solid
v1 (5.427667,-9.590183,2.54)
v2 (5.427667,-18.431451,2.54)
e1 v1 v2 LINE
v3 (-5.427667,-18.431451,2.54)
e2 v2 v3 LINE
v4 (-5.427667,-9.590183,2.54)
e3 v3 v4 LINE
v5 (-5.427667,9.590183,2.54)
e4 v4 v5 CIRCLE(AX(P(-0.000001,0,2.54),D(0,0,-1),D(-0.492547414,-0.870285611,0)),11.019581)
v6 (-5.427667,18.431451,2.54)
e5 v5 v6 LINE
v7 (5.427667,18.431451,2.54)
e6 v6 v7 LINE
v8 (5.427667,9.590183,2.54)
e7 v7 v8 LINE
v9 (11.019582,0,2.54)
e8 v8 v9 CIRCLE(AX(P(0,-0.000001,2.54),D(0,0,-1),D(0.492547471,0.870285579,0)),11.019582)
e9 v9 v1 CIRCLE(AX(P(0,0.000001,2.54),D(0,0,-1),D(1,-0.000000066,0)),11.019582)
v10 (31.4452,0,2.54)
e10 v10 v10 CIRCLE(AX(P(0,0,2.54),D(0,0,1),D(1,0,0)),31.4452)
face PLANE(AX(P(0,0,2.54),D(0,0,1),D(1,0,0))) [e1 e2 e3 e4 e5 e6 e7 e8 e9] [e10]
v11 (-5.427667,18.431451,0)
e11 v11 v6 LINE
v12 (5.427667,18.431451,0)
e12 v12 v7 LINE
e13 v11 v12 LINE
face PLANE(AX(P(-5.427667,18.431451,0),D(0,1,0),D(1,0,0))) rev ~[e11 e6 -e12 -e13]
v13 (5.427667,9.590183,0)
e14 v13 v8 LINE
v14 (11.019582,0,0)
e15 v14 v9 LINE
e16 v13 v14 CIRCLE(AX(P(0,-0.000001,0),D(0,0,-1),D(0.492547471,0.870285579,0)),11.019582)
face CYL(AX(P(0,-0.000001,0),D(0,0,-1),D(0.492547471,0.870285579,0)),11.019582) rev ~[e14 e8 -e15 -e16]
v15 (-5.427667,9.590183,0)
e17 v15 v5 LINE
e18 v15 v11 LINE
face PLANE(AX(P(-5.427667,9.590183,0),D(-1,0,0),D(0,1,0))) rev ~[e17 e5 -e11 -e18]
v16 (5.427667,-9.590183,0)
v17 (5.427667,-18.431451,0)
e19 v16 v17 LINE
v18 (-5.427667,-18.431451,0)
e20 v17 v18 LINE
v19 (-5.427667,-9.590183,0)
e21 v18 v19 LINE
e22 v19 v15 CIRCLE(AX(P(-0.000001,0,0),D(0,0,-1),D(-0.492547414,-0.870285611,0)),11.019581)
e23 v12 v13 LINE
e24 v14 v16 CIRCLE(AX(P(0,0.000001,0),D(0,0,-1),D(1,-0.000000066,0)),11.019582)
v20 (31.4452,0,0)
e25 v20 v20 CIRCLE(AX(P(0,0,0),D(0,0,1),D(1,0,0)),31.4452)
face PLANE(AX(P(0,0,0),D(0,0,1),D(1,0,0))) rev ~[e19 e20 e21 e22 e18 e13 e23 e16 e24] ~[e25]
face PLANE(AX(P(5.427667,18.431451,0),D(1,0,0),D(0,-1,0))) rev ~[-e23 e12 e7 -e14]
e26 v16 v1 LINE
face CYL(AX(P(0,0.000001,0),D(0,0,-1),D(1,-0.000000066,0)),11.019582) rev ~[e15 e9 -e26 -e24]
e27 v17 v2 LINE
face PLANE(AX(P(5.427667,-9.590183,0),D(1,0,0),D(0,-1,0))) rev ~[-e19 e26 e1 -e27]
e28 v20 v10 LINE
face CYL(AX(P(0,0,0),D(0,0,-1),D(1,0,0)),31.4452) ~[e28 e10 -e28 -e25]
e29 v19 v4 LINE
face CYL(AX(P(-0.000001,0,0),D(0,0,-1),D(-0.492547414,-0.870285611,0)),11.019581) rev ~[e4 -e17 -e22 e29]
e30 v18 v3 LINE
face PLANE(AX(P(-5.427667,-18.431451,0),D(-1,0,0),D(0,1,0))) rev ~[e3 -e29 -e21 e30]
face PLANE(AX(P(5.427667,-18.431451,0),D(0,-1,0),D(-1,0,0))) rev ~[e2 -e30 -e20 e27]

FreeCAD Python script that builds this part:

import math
import FreeCAD as App
import Part
import Sketcher
Q = App.Units.Quantity

doc = App.newDocument("Part")
params = doc.addObject("Spreadsheet::Sheet", "Params")
for row, (alias, value) in enumerate([
    ("sketch1_diameter", "2.476 in"),
    ("pad1_length", "0.1 in"),
], start=1):
    params.set(f"A{row}", alias)
    params.set(f"B{row}", "=" + value)
    params.setAlias(f"B{row}", alias)

body = doc.addObject("PartDesign::Body", "Body")

# Sketch on XY plane
sketch1 = body.newObject("Sketcher::SketchObject", "Sketch")
sketch1.AttachmentSupport = (doc.getObject("XY_Plane"), [""])
sketch1.MapMode = "FlatFace"
sketch1.addGeometry(Part.Circle(App.Vector(0, 0, 0), App.Vector(0, 0, 1), 31.4452), False)
sketch1.addGeometry(Part.LineSegment(App.Vector(5.427667, 18.431451, 0), App.Vector(5.427667, 9.590183, 0)), False)
sketch1.addGeometry(Part.ArcOfCircle(Part.Circle(App.Vector(0, -0.000001, 0), App.Vector(0, 0, 1), 11.019582), math.radians(0.000004), math.radians(60.491843)), False)
sketch1.addGeometry(Part.ArcOfCircle(Part.Circle(App.Vector(0, 0.000001, 0), App.Vector(0, 0, 1), 11.019582), math.radians(-60.491843), math.radians(-0.000004)), False)
sketch1.addGeometry(Part.LineSegment(App.Vector(5.427667, -9.590183, 0), App.Vector(5.427667, -18.431451, 0)), False)
sketch1.addGeometry(Part.LineSegment(App.Vector(5.427667, -18.431451, 0), App.Vector(-5.427667, -18.431451, 0)), False)
sketch1.addGeometry(Part.LineSegment(App.Vector(-5.427667, -18.431451, 0), App.Vector(-5.427667, -9.590183, 0)), False)
sketch1.addGeometry(Part.ArcOfCircle(Part.Circle(App.Vector(-0.000001, 0, 0), App.Vector(0, 0, 1), 11.019581), math.radians(119.508154), math.radians(240.491846)), False)
sketch1.addGeometry(Part.LineSegment(App.Vector(-5.427667, 9.590183, 0), App.Vector(-5.427667, 18.431451, 0)), False)
sketch1.addGeometry(Part.LineSegment(App.Vector(-5.427667, 18.431451, 0), App.Vector(5.427667, 18.431451, 0)), False)
sketch1.addConstraint(Sketcher.Constraint("Coincident", 1, 2, 2, 2))
sketch1.addConstraint(Sketcher.Constraint("Tangent", 2, 1, 3, 2))
sketch1.addConstraint(Sketcher.Constraint("Coincident", 3, 1, 4, 1))
sketch1.addConstraint(Sketcher.Constraint("Coincident", 4, 2, 5, 1))
sketch1.addConstraint(Sketcher.Constraint("Coincident", 5, 2, 6, 1))
sketch1.addConstraint(Sketcher.Constraint("Coincident", 6, 2, 7, 2))
sketch1.addConstraint(Sketcher.Constraint("Coincident", 7, 1, 8, 1))
sketch1.addConstraint(Sketcher.Constraint("Coincident", 8, 2, 9, 1))
sketch1.addConstraint(Sketcher.Constraint("Coincident", 9, 2, 1, 1))
sketch1.addConstraint(Sketcher.Constraint("Vertical", 1))
sketch1.addConstraint(Sketcher.Constraint("Vertical", 4))
sketch1.addConstraint(Sketcher.Constraint("Horizontal", 5))
sketch1.addConstraint(Sketcher.Constraint("Vertical", 6))
sketch1.addConstraint(Sketcher.Constraint("Vertical", 8))
sketch1.addConstraint(Sketcher.Constraint("Horizontal", 9))
sketch1.addConstraint(Sketcher.Constraint("Coincident", 0, 3, -1, 1))
sketch1.addConstraint(Sketcher.Constraint("Coincident", 2, 3, -1, 1))
sketch1.addConstraint(Sketcher.Constraint("Coincident", 7, 3, -1, 1))
sketch1.addConstraint(Sketcher.Constraint("Equal", 2, 3))
sketch1.addConstraint(Sketcher.Constraint("Equal", 3, 7))
sketch1.addConstraint(Sketcher.Constraint("Symmetric", 4, 2, 8, 2, -1, 1))
sketch1.addConstraint(Sketcher.Constraint("PointOnObject", 2, 1, -1))
sketch1.addConstraint(Sketcher.Constraint("Horizontal", 3, 1, 6, 2))
sketch1.addConstraint(Sketcher.Constraint("Horizontal", 1, 2, 7, 1))
sketch1.addConstraint(Sketcher.Constraint("Diameter", 0, Q("2.476 in")))
sketch1.addConstraint(Sketcher.Constraint("Radius", 7, 11.019581))
sketch1.addConstraint(Sketcher.Constraint("DistanceX", 5, 2, 5, 1, 10.855334))
sketch1.addConstraint(Sketcher.Constraint("DistanceY", 1, 2, 1, 1, 8.841268))
sketch1.setExpression("Constraints[24]", "Params.sketch1_diameter")
pad1 = body.newObject("PartDesign::Pad", "Pad")
pad1.Profile = sketch1
pad1.setExpression("Length", "Params.pad1_length")

doc.recompute()
